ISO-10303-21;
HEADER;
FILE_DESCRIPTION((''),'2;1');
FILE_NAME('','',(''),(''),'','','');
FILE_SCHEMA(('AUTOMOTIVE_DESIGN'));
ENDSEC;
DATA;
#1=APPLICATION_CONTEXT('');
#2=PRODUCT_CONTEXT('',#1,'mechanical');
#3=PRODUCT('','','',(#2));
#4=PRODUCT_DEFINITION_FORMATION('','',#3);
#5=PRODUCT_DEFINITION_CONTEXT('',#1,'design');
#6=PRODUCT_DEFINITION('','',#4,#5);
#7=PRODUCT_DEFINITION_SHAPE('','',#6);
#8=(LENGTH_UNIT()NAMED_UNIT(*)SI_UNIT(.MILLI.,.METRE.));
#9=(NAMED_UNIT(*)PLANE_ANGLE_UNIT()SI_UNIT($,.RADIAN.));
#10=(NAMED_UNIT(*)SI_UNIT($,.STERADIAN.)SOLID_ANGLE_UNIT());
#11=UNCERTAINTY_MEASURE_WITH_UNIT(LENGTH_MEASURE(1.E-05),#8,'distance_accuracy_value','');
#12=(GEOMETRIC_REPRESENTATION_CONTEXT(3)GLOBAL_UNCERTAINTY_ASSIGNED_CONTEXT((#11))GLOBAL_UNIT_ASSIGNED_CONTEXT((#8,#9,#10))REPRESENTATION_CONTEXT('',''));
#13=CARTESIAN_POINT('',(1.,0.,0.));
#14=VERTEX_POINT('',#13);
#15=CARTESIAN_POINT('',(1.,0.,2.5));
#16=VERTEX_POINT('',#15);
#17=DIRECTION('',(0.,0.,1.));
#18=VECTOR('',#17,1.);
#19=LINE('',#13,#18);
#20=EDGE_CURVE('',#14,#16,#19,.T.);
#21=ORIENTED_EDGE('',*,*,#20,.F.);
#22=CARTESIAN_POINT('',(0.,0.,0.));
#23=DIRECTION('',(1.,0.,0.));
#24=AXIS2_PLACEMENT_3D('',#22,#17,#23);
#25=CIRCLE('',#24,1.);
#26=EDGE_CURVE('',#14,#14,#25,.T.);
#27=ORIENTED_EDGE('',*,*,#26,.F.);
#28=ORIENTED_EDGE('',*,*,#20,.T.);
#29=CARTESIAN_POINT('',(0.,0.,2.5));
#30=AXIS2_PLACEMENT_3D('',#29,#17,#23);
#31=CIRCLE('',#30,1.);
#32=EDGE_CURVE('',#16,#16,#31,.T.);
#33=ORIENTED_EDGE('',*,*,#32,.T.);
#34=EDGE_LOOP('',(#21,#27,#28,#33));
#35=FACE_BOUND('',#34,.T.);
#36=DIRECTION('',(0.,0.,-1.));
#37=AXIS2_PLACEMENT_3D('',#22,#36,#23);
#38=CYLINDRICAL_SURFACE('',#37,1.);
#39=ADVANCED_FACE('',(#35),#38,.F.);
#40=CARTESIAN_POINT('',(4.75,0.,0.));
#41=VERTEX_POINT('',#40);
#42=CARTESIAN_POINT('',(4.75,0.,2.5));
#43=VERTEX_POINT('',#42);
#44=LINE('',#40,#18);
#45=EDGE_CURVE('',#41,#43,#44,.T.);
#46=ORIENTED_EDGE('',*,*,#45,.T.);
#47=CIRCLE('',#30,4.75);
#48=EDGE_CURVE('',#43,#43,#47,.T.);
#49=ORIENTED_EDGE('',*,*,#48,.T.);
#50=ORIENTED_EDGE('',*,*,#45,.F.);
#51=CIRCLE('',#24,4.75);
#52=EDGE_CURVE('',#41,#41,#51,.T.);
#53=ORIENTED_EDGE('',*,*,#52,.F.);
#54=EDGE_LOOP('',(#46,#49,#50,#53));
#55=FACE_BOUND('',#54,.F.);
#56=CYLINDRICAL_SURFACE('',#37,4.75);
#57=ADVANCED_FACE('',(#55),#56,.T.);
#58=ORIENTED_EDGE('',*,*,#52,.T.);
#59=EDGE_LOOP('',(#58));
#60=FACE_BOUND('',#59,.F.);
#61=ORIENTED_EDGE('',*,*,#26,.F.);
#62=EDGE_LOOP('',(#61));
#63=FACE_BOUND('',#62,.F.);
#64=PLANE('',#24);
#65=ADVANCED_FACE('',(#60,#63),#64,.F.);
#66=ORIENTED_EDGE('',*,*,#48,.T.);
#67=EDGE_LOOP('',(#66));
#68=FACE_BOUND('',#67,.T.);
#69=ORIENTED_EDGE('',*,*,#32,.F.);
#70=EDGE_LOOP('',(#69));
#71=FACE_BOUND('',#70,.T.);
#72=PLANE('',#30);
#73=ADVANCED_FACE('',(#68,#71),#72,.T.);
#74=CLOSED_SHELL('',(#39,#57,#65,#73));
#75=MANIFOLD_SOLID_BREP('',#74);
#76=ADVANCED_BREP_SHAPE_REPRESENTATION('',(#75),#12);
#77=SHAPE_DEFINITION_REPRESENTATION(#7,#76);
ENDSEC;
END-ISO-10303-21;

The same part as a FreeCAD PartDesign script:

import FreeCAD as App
import Part
import Sketcher

V = App.Vector

doc = App.newDocument("Part")
params = doc.addObject("Spreadsheet::Sheet", "Params")
for row, (alias, value) in enumerate([
    ("sketch1_diameter", "2 mm"),
    ("sketch1_diameter2", "9.5 mm"),
    ("pad1_length", "2.5 mm"),
], start=1):
    params.set(f"A{row}", alias)
    params.set(f"B{row}", "=" + value)
    params.setAlias(f"B{row}", alias)

body = doc.addObject("PartDesign::Body", "Body")

sketch1 = doc.addObject("Sketcher::SketchObject", "Sketch")
body.addObject(sketch1)
sketch1.AttachmentSupport = (doc.XY_Plane, [""])
sketch1.MapMode = "FlatFace"
sketch1.addGeometry(Part.Circle(V(0, 0, 0), V(0, 0, 1), 4.75), False)
sketch1.addGeometry(Part.Circle(V(0, 0, 0), V(0, 0, 1), 1), False)
sketch1.addConstraint(Sketcher.Constraint("Coincident", 0, 3, -1, 1))
sketch1.addConstraint(Sketcher.Constraint("Coincident", 1, 3, -1, 1))
sketch1.addConstraint(Sketcher.Constraint("Diameter", 1, 2.0))
sketch1.addConstraint(Sketcher.Constraint("Diameter", 0, 9.5))
sketch1.setExpression("Constraints[2]", "Params.sketch1_diameter")
sketch1.setExpression("Constraints[3]", "Params.sketch1_diameter2")
pad1 = doc.addObject("PartDesign::Pad", "Pad")
body.addObject(pad1)
pad1.Profile = sketch1
pad1.setExpression("Length", "Params.pad1_length")

doc.recompute()
